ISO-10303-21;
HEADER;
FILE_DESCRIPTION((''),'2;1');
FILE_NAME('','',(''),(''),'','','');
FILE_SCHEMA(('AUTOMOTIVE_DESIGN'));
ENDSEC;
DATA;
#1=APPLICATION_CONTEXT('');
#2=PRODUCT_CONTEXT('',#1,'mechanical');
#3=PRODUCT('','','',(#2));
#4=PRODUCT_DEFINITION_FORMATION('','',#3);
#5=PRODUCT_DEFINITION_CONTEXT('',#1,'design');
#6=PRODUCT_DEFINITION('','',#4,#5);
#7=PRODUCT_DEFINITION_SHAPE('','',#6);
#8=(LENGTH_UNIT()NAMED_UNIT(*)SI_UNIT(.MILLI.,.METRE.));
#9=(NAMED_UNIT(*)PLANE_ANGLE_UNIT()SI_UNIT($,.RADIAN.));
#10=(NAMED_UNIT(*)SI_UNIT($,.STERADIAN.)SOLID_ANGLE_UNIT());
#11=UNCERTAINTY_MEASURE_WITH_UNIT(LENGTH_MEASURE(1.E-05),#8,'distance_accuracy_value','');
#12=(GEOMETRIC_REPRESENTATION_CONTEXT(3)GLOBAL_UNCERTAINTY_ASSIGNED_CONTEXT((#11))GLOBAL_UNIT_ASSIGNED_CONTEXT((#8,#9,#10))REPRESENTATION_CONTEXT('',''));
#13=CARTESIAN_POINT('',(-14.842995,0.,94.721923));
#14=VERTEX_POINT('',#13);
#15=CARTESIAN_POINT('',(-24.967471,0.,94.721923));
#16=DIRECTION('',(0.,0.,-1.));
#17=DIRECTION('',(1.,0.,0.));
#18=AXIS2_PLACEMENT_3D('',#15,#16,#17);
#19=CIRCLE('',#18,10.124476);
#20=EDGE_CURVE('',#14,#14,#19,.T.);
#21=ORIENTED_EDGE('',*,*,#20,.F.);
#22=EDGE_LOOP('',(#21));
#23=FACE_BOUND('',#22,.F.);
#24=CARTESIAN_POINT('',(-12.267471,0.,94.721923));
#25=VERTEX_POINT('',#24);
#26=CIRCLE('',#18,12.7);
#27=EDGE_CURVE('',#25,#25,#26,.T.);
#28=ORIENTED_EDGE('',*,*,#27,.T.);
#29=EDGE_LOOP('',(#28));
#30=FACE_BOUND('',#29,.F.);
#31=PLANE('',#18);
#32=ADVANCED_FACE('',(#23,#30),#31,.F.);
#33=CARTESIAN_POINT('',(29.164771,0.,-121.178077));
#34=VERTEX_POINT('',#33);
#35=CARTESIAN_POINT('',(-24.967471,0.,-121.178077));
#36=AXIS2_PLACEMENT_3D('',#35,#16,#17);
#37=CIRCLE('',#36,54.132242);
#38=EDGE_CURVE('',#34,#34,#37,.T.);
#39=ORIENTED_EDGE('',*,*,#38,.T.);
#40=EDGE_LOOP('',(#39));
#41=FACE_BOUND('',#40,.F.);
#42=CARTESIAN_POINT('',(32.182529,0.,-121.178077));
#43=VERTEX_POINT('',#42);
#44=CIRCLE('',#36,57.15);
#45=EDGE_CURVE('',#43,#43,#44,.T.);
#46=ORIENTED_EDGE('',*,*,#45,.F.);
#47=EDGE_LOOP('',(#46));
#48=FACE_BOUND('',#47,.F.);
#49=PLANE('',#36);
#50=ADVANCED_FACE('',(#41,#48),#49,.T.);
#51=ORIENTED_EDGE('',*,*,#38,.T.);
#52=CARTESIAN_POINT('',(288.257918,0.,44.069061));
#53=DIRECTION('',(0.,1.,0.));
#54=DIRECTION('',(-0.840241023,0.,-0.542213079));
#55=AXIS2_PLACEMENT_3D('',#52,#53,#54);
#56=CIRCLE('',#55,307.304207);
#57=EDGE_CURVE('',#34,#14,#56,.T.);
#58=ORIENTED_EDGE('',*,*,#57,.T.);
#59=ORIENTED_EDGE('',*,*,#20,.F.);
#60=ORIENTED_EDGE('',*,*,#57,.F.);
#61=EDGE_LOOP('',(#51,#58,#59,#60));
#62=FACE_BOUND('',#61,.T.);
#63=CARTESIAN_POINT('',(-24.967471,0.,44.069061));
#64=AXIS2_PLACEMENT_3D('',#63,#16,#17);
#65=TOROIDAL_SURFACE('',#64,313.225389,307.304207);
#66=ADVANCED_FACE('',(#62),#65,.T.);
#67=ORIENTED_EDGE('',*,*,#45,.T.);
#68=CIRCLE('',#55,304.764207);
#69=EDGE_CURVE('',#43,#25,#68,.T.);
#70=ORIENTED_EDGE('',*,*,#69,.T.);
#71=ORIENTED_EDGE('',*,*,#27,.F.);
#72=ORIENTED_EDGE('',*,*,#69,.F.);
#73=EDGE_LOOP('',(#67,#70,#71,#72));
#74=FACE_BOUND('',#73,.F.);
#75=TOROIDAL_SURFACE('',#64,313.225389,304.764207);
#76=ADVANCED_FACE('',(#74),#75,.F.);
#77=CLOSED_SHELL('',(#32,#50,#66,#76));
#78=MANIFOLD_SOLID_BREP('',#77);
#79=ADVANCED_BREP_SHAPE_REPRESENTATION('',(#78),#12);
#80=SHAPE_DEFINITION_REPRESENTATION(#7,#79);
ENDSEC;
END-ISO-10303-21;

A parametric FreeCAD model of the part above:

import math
import FreeCAD as App
import Part
import Sketcher

V = App.Vector
Q = App.Units.Quantity


def faces_at(feature, points):
    """Names of the faces that lie closest to the given points."""
    faces = feature.Shape.Faces
    near = lambda p: min(range(len(faces)), key=lambda i: faces[i].distToShape(Part.Vertex(*p))[0])
    return sorted({f"Face{near(p) + 1}" for p in points})

doc = App.newDocument("Part")
body = doc.addObject("PartDesign::Body", "Body")

sketch1 = body.newObject("Sketcher::SketchObject", "Sketch")
sketch1.AttachmentSupport = (doc.getObject("XZ_Plane"), [""])
sketch1.MapMode = "FlatFace"
sketch1.addGeometry([
    Part.LineSegment(V(-12, 95, 0), V(-25, 95, 0)),
    Part.LineSegment(V(-25, 95, 0), V(-25, -121, 0)),
    Part.LineSegment(V(-25, -121, 0), V(32, -121, 0)),
    Part.ArcOfCircle(Part.Circle(V(288, 44, 0), V(0, 0, 1), 305), math.radians(170), math.radians(213)),
], False)
sketch1.addGeometry(Part.LineSegment(V(-25, 95, 0), V(-25, -121, 0)), True)
sketch1.addConstraint([
    Sketcher.Constraint("Coincident", 0, 2, 1, 1),
    Sketcher.Constraint("Coincident", 1, 2, 2, 1),
    Sketcher.Constraint("Coincident", 2, 2, 3, 2),
    Sketcher.Constraint("Coincident", 3, 1, 0, 1),
    Sketcher.Constraint("Horizontal", 0),
    Sketcher.Constraint("Vertical", 1),
    Sketcher.Constraint("Horizontal", 2),
    Sketcher.Constraint("Vertical", 4),
    Sketcher.Constraint("Coincident", 4, 1, 0, 2),
    Sketcher.Constraint("Horizontal", 2, 2, 4, 2),
    Sketcher.Constraint("DistanceX", 0, 2, 0, 1, Q("0.5 in")),
    Sketcher.Constraint("DistanceY", 1, 2, 1, 1, Q("8.5 in")),
    Sketcher.Constraint("DistanceX", 2, 1, 2, 2, Q("2.25 in")),
    Sketcher.Constraint("Radius", 3, Q("304.764207 mm")),
    Sketcher.Constraint("DistanceY", -1, 1, 3, 3, Q("44.069061 mm")),
    Sketcher.Constraint("DistanceX", 0, 2, -1, 1, Q("24.967471 mm")),
])
revolution = body.newObject("PartDesign::Revolution", "Revolution")
revolution.Profile = sketch1
revolution.ReferenceAxis = (sketch1, ["Axis0"])
revolution.Angle = 360
doc.recompute()

thickness = body.newObject("PartDesign::Thickness", "Thickness")
thickness.Base = (revolution, faces_at(revolution, [(-24.967, 0, -121.178), (-24.967, 0, 94.722)]))
thickness.Value = Q("0.1 in")
thickness.Reversed = True
thickness.Join = "Arc"

doc.recompute()
